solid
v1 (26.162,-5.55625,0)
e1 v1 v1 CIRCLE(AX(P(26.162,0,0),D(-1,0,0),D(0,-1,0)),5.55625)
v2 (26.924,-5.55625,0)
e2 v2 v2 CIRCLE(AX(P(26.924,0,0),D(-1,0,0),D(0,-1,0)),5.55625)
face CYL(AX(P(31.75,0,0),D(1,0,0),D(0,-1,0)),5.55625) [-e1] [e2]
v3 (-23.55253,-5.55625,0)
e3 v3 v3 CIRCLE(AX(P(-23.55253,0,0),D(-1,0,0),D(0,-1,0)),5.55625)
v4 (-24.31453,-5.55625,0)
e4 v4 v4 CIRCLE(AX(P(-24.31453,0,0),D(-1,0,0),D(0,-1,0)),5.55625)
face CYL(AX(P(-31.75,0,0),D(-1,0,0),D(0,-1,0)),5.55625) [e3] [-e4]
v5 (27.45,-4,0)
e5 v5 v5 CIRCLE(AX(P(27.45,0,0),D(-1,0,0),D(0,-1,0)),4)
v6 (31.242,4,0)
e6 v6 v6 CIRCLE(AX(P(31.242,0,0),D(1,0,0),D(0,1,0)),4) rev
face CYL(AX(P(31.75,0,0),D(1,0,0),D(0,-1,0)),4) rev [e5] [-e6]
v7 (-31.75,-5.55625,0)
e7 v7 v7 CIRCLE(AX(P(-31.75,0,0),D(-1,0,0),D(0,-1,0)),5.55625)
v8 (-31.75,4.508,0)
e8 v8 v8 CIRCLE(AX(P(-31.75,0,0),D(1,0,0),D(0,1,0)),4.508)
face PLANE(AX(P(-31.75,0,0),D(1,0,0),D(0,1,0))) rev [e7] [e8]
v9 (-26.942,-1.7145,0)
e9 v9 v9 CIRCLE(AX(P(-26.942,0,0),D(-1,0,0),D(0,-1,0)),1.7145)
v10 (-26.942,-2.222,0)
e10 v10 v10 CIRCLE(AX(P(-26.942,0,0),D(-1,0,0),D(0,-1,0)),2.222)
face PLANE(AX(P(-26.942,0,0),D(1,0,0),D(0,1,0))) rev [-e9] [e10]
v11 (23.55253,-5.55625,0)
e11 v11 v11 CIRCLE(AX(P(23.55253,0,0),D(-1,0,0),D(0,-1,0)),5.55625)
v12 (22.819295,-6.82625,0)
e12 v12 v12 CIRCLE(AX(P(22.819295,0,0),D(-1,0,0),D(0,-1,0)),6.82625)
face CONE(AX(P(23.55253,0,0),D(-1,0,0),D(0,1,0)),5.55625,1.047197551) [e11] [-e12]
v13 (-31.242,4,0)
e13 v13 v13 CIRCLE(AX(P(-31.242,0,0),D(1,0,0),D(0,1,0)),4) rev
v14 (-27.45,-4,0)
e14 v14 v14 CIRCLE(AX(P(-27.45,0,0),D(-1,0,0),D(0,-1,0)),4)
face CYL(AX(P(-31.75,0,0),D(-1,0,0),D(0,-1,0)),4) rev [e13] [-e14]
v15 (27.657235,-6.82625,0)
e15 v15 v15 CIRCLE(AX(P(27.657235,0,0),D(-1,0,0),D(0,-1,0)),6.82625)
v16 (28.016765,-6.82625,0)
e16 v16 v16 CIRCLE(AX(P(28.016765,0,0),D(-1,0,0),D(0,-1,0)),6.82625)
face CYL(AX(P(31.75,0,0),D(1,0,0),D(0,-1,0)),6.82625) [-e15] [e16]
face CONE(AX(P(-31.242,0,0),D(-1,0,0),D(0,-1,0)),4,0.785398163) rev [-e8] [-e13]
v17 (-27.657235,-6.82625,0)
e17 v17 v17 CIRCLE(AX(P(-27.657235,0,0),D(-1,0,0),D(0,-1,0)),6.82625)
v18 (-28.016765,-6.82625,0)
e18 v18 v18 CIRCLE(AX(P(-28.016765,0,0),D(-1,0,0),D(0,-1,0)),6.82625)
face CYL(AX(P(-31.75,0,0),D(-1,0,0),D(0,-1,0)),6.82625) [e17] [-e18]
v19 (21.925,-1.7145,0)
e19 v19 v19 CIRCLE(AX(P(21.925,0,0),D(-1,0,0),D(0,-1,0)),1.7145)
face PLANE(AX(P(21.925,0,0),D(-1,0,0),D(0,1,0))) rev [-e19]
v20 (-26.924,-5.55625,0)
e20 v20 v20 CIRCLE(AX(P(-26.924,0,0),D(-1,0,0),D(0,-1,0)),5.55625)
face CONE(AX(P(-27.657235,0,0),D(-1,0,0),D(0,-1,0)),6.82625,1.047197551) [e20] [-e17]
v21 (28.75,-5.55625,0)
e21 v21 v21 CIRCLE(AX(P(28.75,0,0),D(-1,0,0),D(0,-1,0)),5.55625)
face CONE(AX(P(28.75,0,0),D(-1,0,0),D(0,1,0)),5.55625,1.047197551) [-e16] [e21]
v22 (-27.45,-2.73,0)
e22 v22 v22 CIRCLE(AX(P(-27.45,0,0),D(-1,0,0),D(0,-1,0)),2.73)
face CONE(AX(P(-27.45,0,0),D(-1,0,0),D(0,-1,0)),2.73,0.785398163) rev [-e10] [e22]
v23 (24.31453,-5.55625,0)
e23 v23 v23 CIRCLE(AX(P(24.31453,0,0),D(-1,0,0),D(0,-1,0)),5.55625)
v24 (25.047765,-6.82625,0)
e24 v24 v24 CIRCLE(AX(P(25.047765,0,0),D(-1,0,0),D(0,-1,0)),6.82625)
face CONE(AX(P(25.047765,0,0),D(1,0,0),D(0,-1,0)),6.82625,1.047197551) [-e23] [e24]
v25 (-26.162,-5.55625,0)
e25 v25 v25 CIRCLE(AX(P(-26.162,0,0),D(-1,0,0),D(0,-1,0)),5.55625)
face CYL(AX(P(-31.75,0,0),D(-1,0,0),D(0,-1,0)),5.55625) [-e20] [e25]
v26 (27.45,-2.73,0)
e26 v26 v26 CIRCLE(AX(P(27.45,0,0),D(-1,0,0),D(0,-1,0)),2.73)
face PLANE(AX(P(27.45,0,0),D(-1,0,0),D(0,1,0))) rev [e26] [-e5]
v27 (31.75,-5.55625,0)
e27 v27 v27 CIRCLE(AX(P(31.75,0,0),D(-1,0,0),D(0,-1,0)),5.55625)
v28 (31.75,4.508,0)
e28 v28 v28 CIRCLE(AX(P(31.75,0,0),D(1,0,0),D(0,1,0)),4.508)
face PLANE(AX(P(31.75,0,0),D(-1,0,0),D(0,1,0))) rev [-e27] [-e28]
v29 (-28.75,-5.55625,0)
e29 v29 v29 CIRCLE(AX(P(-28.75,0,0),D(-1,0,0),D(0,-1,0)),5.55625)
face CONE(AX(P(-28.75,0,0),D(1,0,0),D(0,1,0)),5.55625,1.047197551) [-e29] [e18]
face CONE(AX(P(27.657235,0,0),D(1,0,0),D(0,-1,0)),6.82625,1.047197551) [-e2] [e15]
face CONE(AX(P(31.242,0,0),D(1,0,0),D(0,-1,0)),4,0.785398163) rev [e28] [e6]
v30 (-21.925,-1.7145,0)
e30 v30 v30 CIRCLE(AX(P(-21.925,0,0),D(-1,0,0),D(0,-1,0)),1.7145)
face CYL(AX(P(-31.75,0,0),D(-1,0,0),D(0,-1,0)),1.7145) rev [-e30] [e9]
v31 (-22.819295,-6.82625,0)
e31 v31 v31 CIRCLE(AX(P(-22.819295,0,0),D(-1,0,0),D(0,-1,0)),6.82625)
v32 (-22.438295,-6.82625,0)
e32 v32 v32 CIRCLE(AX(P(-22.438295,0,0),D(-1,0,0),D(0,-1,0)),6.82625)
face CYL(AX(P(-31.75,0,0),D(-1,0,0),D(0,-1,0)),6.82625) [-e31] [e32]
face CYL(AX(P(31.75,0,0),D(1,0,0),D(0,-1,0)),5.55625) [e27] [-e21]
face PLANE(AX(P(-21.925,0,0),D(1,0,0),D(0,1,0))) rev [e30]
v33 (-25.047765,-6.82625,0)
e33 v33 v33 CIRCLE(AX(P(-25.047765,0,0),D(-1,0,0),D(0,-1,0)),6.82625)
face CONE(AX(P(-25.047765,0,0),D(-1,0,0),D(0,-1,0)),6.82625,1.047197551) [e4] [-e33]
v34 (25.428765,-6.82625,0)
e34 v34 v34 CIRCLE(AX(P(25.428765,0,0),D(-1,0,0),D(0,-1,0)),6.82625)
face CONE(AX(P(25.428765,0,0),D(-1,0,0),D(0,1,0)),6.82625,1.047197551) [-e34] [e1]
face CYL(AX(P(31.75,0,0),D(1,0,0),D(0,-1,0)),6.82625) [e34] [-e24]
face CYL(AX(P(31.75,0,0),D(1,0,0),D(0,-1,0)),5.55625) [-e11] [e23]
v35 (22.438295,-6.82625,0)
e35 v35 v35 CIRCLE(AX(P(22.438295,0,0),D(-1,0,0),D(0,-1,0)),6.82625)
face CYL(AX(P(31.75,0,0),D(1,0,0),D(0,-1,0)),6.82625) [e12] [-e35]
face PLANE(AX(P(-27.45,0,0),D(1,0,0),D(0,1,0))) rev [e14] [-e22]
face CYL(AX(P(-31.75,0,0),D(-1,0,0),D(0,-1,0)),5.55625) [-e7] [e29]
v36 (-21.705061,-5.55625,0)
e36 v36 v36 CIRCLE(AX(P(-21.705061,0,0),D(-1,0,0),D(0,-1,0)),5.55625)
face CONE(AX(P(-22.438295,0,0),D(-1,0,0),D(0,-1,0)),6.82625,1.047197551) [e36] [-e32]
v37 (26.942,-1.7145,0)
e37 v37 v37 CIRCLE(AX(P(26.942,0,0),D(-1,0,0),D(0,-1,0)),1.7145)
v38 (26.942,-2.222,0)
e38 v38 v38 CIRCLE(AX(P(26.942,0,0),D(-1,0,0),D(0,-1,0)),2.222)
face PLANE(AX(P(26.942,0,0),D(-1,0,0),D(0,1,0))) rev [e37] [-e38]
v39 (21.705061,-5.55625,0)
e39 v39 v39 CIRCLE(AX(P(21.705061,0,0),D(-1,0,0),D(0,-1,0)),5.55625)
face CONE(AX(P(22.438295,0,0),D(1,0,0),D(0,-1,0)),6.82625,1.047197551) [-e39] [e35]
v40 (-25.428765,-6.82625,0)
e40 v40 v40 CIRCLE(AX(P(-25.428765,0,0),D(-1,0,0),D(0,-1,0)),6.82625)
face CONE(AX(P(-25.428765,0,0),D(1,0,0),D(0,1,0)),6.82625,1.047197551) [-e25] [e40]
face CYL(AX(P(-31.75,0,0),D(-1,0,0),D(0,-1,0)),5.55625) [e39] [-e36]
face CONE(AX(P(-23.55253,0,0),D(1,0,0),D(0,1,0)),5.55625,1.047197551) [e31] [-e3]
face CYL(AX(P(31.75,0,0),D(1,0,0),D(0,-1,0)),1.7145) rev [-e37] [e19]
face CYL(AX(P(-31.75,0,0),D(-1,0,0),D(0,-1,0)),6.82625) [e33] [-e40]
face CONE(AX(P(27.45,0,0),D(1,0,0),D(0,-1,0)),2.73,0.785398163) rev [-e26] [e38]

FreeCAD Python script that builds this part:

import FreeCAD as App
import Part
import Sketcher
from FreeCAD import Vector
Q = App.Units.Quantity


def edges_at(feature, points):
    """Names of the edges that pass closest to the given points."""
    edges = feature.Shape.Edges
    near = lambda p: min(range(len(edges)), key=lambda i: edges[i].distToShape(Part.Vertex(*p))[0])
    return sorted({f"Edge{near(p) + 1}" for p in points})


def add_polygon(sketch, points):
    """Adds a closed chain of lines whose ends are joined by coincident constraints."""
    first, n = sketch.GeometryCount, len(points)
    for a, b in zip(points, points[1:] + points[:1]):
        sketch.addGeometry(Part.LineSegment(App.Vector(*a, 0), App.Vector(*b, 0)), False)
    for i in range(n):
        sketch.addConstraint(Sketcher.Constraint("Coincident", first + i, 2, first + (i + 1) % n, 1))

doc = App.newDocument("Part")
body = doc.addObject("PartDesign::Body", "Body")

sketch1 = doc.addObject("Sketcher::SketchObject", "Sketch")
body.addObject(sketch1)
sketch1.AttachmentSupport = (doc.XY_Plane, [""])
sketch1.MapMode = "FlatFace"
add_polygon(sketch1, [(-28.75, 5.56), (-31.75, 5.56), (-31.75, 4), (-27.45, 4), (-27.45, 2.73), (-26.94, 2.22), (-26.94, 1.71), (-21.93, 1.71), (-21.93, 0), (0, 0), (0, 5.56), (-21.71, 5.56), (-22.44, 6.83), (-22.82, 6.83), (-23.55, 5.56), (-24.31, 5.56), (-25.05, 6.83), (-25.43, 6.83), (-26.16, 5.56), (-26.92, 5.56), (-27.66, 6.83), (-28.02, 6.83)])
sketch1.addConstraint(Sketcher.Constraint("Horizontal", 0))
sketch1.addConstraint(Sketcher.Constraint("Vertical", 1))
sketch1.addConstraint(Sketcher.Constraint("Horizontal", 2))
sketch1.addConstraint(Sketcher.Constraint("Vertical", 3))
sketch1.addConstraint(Sketcher.Constraint("Vertical", 5))
sketch1.addConstraint(Sketcher.Constraint("Horizontal", 6))
sketch1.addConstraint(Sketcher.Constraint("Vertical", 7))
sketch1.addConstraint(Sketcher.Constraint("Horizontal", 8))
sketch1.addConstraint(Sketcher.Constraint("Vertical", 9))
sketch1.addConstraint(Sketcher.Constraint("Horizontal", 10))
sketch1.addConstraint(Sketcher.Constraint("Horizontal", 12))
sketch1.addConstraint(Sketcher.Constraint("Horizontal", 14))
sketch1.addConstraint(Sketcher.Constraint("Horizontal", 16))
sketch1.addConstraint(Sketcher.Constraint("Horizontal", 18))
sketch1.addConstraint(Sketcher.Constraint("Horizontal", 20))
sketch1.addConstraint(Sketcher.Constraint("Coincident", 8, 2, -1, 1))
sketch1.addConstraint(Sketcher.Constraint("Parallel", 11, 15))
sketch1.addConstraint(Sketcher.Constraint("Parallel", 13, 17))
sketch1.addConstraint(Sketcher.Constraint("Parallel", 15, 19))
sketch1.addConstraint(Sketcher.Constraint("Parallel", 17, 21))
sketch1.addConstraint(Sketcher.Constraint("Horizontal", 0, 2, 9, 2))
sketch1.addConstraint(Sketcher.Constraint("Horizontal", 10, 2, 13, 2))
sketch1.addConstraint(Sketcher.Constraint("Horizontal", 12, 2, 15, 2))
sketch1.addConstraint(Sketcher.Constraint("Horizontal", 14, 2, 17, 2))
sketch1.addConstraint(Sketcher.Constraint("Horizontal", 16, 2, 19, 2))
sketch1.addConstraint(Sketcher.Constraint("Equal", 12, 16))
sketch1.addConstraint(Sketcher.Constraint("Equal", 14, 18))
sketch1.addConstraint(Sketcher.Constraint("Equal", 11, 13))
sketch1.addConstraint(Sketcher.Constraint("Angle", 4, Q("-45 deg")))
sketch1.addConstraint(Sketcher.Constraint("Angle", 11, Q("120 deg")))
sketch1.addConstraint(Sketcher.Constraint("DistanceX", 14, 2, 14, 1, Q("0.03 in")))
sketch1.addConstraint(Sketcher.Constraint("DistanceY", 3, 2, 3, 1, Q("0.05 in")))
sketch1.addConstraint(Sketcher.Constraint("DistanceX", 12, 2, 12, 1, Q("0.015 in")))
sketch1.addConstraint(Sketcher.Constraint("DistanceY", 9, 1, 9, 2, Q("0.21875 in")))
sketch1.addConstraint(Sketcher.Constraint("DistanceX", 0, 2, -1, 1, Q("1.25 in")))
sketch1.addConstraint(Sketcher.Constraint("DistanceX", 17, 2, -1, 1, Q("1.03 in")))
sketch1.addConstraint(Sketcher.Constraint("DistanceX", 3, 2, 4, 2, Q("0.02 in")))
sketch1.addConstraint(Sketcher.Constraint("DistanceY", 10, 2, 11, 2, Q("0.05 in")))
sketch1.addConstraint(Sketcher.Constraint("DistanceY", 7, 2, 7, 1, Q("0.0675 in")))
sketch1.addConstraint(Sketcher.Constraint("DistanceX", 0, 2, 0, 1, 3.0))
sketch1.addConstraint(Sketcher.Constraint("DistanceX", 2, 1, 2, 2, 4.3))
sketch1.addConstraint(Sketcher.Constraint("DistanceX", 6, 1, 6, 2, 5.017))
sketch1.addConstraint(Sketcher.Constraint("DistanceY", 5, 2, 5, 1, 0.5075))
revolution = doc.addObject("PartDesign::Revolution", "Revolution")
body.addObject(revolution)
revolution.Profile = sketch1
revolution.ReferenceAxis = (sketch1, ["H_Axis"])
revolution.Angle = 360
doc.recompute()

chamfer = doc.addObject("PartDesign::Chamfer", "Chamfer")
body.addObject(chamfer)
chamfer.Base = (revolution, edges_at(revolution, [(-31.75, 4, 0)]))
chamfer.Size = Q("0.02 in")
body2 = doc.addObject("PartDesign::Body", "Body001")
doc.recompute()

body2.BaseFeature = body
doc.recompute()

mirroring = doc.addObject("Part::Mirroring", "Mirroring")
mirroring.Source = body
mirroring.Base = Vector(0, 0, 0)
mirroring.Normal = Vector(1, 0, 0)
body3 = doc.addObject("PartDesign::Body", "Body002")
body3.BaseFeature = mirroring
boolean = doc.addObject("PartDesign::Boolean", "Boolean")
body2.addObject(boolean)
boolean.Type = "Fuse"
boolean.addObjects([body3])
doc.recompute()
mirroring.Visibility = False

doc.recompute()
